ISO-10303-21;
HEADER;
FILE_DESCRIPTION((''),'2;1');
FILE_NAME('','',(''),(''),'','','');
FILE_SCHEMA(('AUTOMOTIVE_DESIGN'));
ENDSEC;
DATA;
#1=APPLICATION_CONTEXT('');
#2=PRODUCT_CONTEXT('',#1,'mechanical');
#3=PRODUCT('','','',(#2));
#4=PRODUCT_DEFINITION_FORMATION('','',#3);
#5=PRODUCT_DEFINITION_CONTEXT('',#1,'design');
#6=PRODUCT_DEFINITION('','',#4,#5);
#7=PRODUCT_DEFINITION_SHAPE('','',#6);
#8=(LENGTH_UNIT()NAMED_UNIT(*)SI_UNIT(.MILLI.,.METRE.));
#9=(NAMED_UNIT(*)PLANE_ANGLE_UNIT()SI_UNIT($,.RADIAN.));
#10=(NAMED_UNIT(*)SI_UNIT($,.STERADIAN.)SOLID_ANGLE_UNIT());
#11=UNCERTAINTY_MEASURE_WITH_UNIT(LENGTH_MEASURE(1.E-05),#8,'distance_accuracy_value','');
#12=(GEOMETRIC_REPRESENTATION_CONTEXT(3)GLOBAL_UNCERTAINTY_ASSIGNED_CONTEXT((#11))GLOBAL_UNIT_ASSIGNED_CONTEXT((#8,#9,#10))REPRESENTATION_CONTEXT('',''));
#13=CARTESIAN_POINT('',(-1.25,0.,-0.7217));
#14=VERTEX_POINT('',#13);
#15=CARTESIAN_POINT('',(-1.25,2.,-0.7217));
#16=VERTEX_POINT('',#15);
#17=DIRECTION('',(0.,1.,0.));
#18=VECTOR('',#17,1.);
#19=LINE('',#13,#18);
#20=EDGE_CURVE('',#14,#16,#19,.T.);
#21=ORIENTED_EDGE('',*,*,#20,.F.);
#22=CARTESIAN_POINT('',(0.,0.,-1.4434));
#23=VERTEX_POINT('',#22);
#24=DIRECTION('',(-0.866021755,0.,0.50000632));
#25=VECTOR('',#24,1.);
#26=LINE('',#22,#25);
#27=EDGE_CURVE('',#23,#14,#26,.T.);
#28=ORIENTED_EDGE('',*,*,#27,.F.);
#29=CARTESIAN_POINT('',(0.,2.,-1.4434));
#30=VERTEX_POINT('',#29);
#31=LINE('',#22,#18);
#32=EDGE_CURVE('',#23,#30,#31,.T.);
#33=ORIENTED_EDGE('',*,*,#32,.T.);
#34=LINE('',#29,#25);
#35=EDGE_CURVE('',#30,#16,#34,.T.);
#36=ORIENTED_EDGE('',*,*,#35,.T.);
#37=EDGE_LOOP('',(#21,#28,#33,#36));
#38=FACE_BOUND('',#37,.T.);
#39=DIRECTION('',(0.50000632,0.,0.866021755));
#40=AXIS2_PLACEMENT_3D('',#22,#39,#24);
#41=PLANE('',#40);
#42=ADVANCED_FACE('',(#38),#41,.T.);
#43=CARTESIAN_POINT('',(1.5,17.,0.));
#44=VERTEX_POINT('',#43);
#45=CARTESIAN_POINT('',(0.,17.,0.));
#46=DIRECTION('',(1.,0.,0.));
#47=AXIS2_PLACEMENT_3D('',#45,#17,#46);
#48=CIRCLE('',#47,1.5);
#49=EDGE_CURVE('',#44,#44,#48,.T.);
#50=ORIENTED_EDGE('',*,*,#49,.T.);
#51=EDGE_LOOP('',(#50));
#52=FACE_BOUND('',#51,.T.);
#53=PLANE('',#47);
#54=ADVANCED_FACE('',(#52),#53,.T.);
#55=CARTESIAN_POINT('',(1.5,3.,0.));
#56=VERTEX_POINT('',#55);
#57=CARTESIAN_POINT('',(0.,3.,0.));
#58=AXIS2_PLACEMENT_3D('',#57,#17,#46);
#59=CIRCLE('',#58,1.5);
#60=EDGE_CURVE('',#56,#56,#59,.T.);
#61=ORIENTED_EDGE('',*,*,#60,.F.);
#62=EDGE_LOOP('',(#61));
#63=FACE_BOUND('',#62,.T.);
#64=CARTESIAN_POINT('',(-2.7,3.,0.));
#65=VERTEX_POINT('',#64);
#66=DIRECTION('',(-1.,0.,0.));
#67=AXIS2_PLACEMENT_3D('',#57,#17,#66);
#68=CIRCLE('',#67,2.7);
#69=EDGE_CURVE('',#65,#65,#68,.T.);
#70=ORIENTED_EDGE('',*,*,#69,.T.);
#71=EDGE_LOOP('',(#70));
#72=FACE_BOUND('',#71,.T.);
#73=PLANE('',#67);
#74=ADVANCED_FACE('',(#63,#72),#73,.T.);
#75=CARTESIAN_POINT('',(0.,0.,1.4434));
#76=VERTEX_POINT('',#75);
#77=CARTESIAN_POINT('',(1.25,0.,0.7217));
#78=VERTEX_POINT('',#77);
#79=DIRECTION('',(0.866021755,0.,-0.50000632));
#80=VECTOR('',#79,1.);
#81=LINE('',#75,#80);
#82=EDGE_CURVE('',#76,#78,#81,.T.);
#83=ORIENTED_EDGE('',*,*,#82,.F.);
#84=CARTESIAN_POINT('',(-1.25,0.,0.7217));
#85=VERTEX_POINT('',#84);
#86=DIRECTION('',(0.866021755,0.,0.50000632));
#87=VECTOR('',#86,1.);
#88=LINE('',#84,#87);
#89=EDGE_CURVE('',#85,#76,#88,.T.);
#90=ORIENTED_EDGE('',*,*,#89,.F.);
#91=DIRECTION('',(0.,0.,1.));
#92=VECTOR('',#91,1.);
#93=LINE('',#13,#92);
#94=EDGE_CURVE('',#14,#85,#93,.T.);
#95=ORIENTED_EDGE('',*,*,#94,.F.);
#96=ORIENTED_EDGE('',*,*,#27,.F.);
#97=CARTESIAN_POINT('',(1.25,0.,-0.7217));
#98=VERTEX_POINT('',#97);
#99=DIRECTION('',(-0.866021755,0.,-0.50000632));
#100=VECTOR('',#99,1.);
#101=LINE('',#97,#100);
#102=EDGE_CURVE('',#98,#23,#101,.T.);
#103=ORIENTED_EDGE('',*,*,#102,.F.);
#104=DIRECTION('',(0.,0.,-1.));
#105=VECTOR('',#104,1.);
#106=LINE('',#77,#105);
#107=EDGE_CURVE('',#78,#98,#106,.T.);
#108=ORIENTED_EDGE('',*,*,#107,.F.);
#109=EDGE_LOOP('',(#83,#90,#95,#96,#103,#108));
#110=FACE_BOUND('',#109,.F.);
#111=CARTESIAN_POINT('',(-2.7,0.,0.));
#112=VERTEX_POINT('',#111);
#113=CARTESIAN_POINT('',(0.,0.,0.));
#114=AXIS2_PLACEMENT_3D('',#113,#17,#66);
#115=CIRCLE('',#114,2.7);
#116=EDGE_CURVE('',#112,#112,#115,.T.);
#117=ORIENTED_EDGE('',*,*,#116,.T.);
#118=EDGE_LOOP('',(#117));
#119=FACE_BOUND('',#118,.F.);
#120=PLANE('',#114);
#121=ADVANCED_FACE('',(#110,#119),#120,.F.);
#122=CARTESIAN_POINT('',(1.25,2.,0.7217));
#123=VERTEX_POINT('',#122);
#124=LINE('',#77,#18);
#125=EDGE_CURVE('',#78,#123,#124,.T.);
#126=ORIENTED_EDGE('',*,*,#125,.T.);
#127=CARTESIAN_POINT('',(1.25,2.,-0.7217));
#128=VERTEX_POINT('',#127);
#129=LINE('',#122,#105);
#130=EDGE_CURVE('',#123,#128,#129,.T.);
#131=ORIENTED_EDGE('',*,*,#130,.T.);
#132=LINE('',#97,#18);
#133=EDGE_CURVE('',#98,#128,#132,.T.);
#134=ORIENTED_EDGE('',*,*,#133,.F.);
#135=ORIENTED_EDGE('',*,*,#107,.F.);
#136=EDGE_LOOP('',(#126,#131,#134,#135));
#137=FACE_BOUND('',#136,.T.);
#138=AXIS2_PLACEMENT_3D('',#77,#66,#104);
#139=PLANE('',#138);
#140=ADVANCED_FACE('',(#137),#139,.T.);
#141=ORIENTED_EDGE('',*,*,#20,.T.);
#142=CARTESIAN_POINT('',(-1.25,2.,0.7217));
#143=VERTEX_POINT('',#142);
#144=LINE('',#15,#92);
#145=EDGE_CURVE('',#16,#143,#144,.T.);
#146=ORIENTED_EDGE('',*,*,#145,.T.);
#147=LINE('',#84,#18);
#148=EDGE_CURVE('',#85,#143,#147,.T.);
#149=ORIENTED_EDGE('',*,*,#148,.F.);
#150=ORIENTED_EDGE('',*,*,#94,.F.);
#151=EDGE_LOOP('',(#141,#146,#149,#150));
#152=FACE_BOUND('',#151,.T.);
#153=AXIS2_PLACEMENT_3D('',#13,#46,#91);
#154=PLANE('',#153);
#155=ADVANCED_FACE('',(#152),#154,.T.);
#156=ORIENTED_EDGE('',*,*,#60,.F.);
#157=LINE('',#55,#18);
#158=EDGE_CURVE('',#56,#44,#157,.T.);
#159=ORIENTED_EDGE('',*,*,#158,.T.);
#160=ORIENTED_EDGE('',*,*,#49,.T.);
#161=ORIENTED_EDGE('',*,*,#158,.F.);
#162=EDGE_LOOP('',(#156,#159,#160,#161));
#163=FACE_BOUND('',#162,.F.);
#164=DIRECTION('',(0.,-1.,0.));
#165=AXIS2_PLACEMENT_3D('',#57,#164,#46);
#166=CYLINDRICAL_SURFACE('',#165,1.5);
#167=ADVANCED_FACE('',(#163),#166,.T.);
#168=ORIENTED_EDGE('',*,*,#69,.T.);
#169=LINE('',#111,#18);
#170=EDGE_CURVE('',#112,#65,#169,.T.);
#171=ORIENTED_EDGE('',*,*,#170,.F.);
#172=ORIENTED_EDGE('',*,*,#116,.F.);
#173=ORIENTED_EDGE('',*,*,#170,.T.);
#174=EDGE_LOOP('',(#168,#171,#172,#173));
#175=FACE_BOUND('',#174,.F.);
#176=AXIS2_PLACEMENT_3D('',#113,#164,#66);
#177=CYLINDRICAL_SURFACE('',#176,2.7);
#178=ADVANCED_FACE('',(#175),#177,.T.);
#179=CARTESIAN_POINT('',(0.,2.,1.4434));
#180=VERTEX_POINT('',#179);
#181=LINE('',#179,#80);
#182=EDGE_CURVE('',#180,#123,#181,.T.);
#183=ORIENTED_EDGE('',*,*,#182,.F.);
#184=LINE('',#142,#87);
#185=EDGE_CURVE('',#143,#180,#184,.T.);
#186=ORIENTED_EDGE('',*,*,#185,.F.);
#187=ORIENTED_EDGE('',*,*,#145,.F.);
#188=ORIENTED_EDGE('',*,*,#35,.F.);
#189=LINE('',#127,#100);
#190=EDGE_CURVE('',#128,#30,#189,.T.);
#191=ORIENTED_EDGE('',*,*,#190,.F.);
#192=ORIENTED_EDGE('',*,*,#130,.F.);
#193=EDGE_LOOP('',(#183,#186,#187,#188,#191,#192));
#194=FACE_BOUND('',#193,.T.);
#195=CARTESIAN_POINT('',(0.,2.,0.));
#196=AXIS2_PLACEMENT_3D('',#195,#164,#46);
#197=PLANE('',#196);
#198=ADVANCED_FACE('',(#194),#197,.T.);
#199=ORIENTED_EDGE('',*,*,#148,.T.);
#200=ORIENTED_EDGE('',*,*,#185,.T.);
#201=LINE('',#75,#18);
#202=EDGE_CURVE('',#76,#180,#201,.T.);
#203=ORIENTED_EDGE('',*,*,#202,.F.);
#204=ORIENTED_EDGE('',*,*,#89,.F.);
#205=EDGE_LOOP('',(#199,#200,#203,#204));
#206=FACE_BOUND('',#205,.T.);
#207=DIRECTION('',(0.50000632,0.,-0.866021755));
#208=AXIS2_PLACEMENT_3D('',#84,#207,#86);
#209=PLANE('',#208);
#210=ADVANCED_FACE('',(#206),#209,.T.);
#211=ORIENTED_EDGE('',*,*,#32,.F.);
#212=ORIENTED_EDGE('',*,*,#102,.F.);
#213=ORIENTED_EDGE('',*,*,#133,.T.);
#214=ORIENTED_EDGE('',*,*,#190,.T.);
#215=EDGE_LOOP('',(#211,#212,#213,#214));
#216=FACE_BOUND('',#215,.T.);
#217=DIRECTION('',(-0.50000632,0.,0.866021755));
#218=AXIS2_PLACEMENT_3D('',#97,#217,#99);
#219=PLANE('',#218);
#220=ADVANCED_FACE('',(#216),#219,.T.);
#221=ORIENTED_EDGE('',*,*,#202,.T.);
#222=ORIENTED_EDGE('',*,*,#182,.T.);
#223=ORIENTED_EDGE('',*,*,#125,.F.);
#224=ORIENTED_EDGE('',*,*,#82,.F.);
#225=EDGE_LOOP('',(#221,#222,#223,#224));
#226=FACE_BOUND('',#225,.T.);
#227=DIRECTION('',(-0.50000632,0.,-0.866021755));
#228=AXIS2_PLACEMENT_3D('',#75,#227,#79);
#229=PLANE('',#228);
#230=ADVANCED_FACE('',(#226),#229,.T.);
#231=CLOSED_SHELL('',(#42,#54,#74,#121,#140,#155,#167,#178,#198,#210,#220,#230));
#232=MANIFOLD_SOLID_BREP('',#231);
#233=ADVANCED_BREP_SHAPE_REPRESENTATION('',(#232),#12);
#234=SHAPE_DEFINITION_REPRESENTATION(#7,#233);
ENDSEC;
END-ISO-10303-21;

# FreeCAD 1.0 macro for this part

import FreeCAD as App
import Part
import Sketcher

V = App.Vector
Q = App.Units.Quantity


def add_polygon(sketch, points):
    """Adds a closed chain of lines whose ends are joined by coincident constraints."""
    first, n = sketch.GeometryCount, len(points)
    for a, b in zip(points, points[1:] + points[:1]):
        sketch.addGeometry(Part.LineSegment(App.Vector(*a, 0), App.Vector(*b, 0)), False)
    for i in range(n):
        sketch.addConstraint(Sketcher.Constraint("Coincident", first + i, 2, first + (i + 1) % n, 1))

doc = App.newDocument("Part")
body = doc.addObject("PartDesign::Body", "Body")

sketch1 = doc.addObject("Sketcher::SketchObject", "Sketch")
body.addObject(sketch1)
sketch1.AttachmentSupport = (doc.XZ_Plane, [""])
sketch1.MapMode = "FlatFace"
sketch1.addGeometry(Part.Circle(V(0, 0, 0), V(0, 0, 1), 2.7), False)
sketch1.addConstraint(Sketcher.Constraint("Coincident", 0, 3, -1, 1))
sketch1.addConstraint(Sketcher.Constraint("Diameter", 0, Q("5.4 mm")))
pad1 = doc.addObject("PartDesign::Pad", "Pad")
body.addObject(pad1)
pad1.Profile = sketch1
pad1.Length = 3
pad1.Reversed = True

sketch2 = doc.addObject("Sketcher::SketchObject", "Sketch001")
body.addObject(sketch2)
sketch2.AttachmentSupport = (doc.XZ_Plane, [""])
sketch2.MapMode = "FlatFace"
sketch2.AttachmentOffset = App.Placement(V(0, 0, -3), App.Rotation())
sketch2.addGeometry(Part.Circle(V(0, 0, 0), V(0, 0, 1), 1.5), False)
sketch2.addConstraint(Sketcher.Constraint("Coincident", 0, 3, -1, 1))
sketch2.addConstraint(Sketcher.Constraint("Diameter", 0, Q("3 mm")))
pad2 = doc.addObject("PartDesign::Pad", "Pad001")
body.addObject(pad2)
pad2.Profile = sketch2
pad2.Length = 14
pad2.Reversed = True

sketch3 = doc.addObject("Sketcher::SketchObject", "Sketch002")
body.addObject(sketch3)
sketch3.AttachmentSupport = (doc.XZ_Plane, [""])
sketch3.MapMode = "FlatFace"
add_polygon(sketch3, [(-1.2, -0.7), (0, -1.4), (1.2, -0.7), (1.2, 0.7), (0, 1.4), (-1.2, 0.7)])
sketch3.addConstraint(Sketcher.Constraint("Vertical", 2))
sketch3.addConstraint(Sketcher.Constraint("Vertical", 5))
sketch3.addConstraint(Sketcher.Constraint("Symmetric", 0, 2, 3, 2, -1, 1))
sketch3.addConstraint(Sketcher.Constraint("Symmetric", 1, 2, 4, 2, -1, 1))
sketch3.addConstraint(Sketcher.Constraint("PointOnObject", 0, 2, -2))
sketch3.addConstraint(Sketcher.Constraint("Parallel", 0, 3))
sketch3.addConstraint(Sketcher.Constraint("Horizontal", 2, 2, 4, 2))
sketch3.addConstraint(Sketcher.Constraint("DistanceX", 4, 2, 2, 2, Q("2.5 mm")))
sketch3.addConstraint(Sketcher.Constraint("Angle", 0, Q("-30.0004 deg")))
sketch3.addConstraint(Sketcher.Constraint("DistanceY", 2, 1, 2, 2, Q("1.4434 mm")))
pocket1 = doc.addObject("PartDesign::Pocket", "Pocket")
body.addObject(pocket1)
pocket1.Profile = sketch3
pocket1.Length = 2

doc.recompute()
